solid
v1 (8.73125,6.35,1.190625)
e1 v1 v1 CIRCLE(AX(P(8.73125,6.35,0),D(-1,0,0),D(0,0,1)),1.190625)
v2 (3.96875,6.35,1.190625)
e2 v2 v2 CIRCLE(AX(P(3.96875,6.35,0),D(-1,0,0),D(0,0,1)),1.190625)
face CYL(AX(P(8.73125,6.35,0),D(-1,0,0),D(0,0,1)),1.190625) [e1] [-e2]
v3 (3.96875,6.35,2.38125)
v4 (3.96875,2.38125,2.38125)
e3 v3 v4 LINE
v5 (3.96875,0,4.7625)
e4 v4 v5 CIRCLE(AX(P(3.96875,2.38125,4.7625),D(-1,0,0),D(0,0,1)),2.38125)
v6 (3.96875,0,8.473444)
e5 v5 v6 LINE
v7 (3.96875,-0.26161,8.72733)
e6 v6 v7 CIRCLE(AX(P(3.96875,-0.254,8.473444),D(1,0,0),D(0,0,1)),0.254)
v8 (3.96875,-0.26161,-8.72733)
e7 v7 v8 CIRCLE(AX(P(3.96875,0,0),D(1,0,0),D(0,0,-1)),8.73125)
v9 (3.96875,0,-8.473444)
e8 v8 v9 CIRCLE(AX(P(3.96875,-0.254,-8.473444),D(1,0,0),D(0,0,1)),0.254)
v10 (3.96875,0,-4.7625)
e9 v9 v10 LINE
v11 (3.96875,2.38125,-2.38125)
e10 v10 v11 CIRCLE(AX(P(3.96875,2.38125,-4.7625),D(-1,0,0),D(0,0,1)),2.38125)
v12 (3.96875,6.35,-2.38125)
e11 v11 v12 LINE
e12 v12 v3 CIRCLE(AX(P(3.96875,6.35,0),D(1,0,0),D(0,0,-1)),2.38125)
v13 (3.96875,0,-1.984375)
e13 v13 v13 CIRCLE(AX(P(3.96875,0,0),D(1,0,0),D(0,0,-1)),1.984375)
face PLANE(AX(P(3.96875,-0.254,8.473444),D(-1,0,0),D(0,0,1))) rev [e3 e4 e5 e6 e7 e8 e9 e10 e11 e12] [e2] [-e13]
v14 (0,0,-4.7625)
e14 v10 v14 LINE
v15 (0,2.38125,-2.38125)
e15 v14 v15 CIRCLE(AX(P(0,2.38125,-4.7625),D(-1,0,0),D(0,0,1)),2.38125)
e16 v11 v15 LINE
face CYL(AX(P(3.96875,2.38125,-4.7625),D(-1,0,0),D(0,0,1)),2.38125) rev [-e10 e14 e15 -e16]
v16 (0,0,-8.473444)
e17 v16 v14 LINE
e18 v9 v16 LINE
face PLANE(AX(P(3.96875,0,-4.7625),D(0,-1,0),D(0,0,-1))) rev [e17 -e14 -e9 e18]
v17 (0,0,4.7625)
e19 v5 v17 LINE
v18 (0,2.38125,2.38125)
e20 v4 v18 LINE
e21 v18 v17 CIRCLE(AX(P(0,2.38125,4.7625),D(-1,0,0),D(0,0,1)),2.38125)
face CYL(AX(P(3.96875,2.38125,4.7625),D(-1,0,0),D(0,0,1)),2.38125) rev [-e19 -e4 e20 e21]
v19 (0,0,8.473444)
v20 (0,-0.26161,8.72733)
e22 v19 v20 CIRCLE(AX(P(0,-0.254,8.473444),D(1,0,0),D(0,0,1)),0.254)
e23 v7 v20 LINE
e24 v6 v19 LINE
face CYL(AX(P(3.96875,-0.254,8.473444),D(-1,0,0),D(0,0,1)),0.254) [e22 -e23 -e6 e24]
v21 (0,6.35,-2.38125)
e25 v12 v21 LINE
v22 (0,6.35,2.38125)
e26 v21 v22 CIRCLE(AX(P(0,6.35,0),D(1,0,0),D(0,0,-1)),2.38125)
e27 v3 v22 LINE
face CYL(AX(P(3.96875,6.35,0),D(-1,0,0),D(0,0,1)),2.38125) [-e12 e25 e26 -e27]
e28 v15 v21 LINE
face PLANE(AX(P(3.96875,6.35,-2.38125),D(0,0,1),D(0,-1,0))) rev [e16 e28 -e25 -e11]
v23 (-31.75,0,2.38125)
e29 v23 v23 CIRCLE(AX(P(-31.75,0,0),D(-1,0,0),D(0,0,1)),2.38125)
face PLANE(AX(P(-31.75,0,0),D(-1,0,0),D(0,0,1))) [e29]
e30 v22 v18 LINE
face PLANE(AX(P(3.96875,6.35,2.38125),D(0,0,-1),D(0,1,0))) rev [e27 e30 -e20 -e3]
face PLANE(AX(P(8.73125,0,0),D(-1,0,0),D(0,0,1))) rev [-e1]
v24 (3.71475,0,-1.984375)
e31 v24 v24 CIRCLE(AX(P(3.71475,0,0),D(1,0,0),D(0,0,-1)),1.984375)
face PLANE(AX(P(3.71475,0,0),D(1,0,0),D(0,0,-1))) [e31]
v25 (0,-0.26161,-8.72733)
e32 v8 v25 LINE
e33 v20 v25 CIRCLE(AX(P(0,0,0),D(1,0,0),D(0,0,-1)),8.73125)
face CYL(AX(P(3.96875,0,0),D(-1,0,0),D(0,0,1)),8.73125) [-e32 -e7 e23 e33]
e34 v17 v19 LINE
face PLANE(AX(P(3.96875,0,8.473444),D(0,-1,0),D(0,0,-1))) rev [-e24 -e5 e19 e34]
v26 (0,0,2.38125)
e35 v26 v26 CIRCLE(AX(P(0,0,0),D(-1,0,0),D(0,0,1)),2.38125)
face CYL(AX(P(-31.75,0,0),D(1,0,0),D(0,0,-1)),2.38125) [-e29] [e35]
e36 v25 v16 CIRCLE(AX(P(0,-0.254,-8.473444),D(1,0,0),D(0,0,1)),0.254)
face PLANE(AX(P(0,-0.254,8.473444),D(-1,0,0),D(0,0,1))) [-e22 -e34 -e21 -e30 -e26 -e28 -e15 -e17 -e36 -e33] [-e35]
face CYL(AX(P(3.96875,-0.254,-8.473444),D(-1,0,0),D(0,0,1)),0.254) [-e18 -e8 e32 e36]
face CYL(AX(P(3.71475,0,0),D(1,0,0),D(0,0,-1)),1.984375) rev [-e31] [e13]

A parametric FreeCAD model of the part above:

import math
import FreeCAD as App
import Part
import Sketcher
from FreeCAD import Vector
Q = App.Units.Quantity

doc = App.newDocument("Part")
params = doc.addObject("Spreadsheet::Sheet", "Params")
for row, (alias, value) in enumerate([
    ("sketch1_radius", "0.01 in"),
    ("sketch1_radius2", "0.09375 in"),
    ("sketch1_radius3", "0.34375 in"),
    ("sketch1_width", "0.15625 in"),
    ("pad1_length", "0.15625 in"),
    ("sketch2_diameter", "0.1875 in"),
    ("pad2_length", "1.25 in"),
    ("sketch3_diameter", "0.09375 in"),
    ("pad3_length", "0.34375 in"),
    ("sketch4_diameter", "0.15625 in"),
    ("pocket1_length", "0.01 in"),
], start=1):
    params.set(f"A{row}", alias)
    params.set(f"B{row}", "=" + value)
    params.setAlias(f"B{row}", alias)

body = doc.addObject("PartDesign::Body", "Body")

# Sketch on YZ plane
sketch1 = doc.addObject("Sketcher::SketchObject", "Sketch")
body.addObject(sketch1)
sketch1.AttachmentSupport = (doc.YZ_Plane, [""])
sketch1.MapMode = "FlatFace"
sketch1.addGeometry([
    Part.LineSegment(Vector(6.35, 2.38, 0), Vector(2.38, 2.38, 0)),  # 0
    Part.ArcOfCircle(Part.Circle(Vector(2.38, 4.76, 0), Vector(0, 0, 1), 2.38), math.radians(180), math.radians(270)),  # 1
    Part.LineSegment(Vector(0, 4.76, 0), Vector(0, 8.47, 0)),  # 2
    Part.ArcOfCircle(Part.Circle(Vector(-0.25, 8.47, 0), Vector(0, 0, 1), 0.25), math.radians(0), math.radians(92)),  # 3
    Part.ArcOfCircle(Part.Circle(Vector(0, 0, 0), Vector(0, 0, 1), 8.73), math.radians(92), math.radians(268)),  # 4
    Part.ArcOfCircle(Part.Circle(Vector(-0.25, -8.47, 0), Vector(0, 0, 1), 0.25), math.radians(-92), math.radians(0)),  # 5
    Part.LineSegment(Vector(0, -8.47, 0), Vector(0, -4.76, 0)),  # 6
    Part.ArcOfCircle(Part.Circle(Vector(2.38, -4.76, 0), Vector(0, 0, 1), 2.38), math.radians(90), math.radians(180)),  # 7
    Part.LineSegment(Vector(2.38, -2.38, 0), Vector(6.35, -2.38, 0)),  # 8
    Part.ArcOfCircle(Part.Circle(Vector(6.35, 0, 0), Vector(0, 0, 1), 2.38), math.radians(-90), math.radians(90)),  # 9
], False)
sketch1.addConstraint([
    Sketcher.Constraint("Tangent", 0, 2, 1, 2),
    Sketcher.Constraint("Tangent", 1, 1, 2, 1),
    Sketcher.Constraint("Tangent", 2, 2, 3, 1),
    Sketcher.Constraint("Tangent", 3, 2, 4, 1),
    Sketcher.Constraint("Tangent", 4, 2, 5, 1),
    Sketcher.Constraint("Tangent", 5, 2, 6, 1),
    Sketcher.Constraint("Tangent", 6, 2, 7, 2),
    Sketcher.Constraint("Tangent", 7, 1, 8, 1),
    Sketcher.Constraint("Tangent", 8, 2, 9, 1),
    Sketcher.Constraint("Tangent", 9, 2, 0, 1),
    Sketcher.Constraint("Horizontal", 0),
    Sketcher.Constraint("Vertical", 2),
    Sketcher.Constraint("Vertical", 6),
    Sketcher.Constraint("Horizontal", 8),
    Sketcher.Constraint("Coincident", 4, 3, -1, 1),
    Sketcher.Constraint("Equal", 3, 5),
    Sketcher.Constraint("Equal", 1, 7),
    Sketcher.Constraint("Equal", 7, 9),
    Sketcher.Constraint("Symmetric", 2, 2, 5, 2, -1, 1),
    Sketcher.Constraint("PointOnObject", 9, 3, -1),
    Sketcher.Constraint("Radius", 3, Q("0.01 in")),
    Sketcher.Constraint("Radius", 1, Q("0.09375 in")),
    Sketcher.Constraint("Radius", 4, Q("0.34375 in")),
    Sketcher.Constraint("DistanceX", 0, 2, 0, 1, Q("0.15625 in")),
])
sketch1.setExpression("Constraints[20]", "Params.sketch1_radius")
sketch1.setExpression("Constraints[21]", "Params.sketch1_radius2")
sketch1.setExpression("Constraints[22]", "Params.sketch1_radius3")
sketch1.setExpression("Constraints[23]", "Params.sketch1_width")
pad1 = doc.addObject("PartDesign::Pad", "Pad")
body.addObject(pad1)
pad1.Profile = sketch1
pad1.setExpression("Length", "Params.pad1_length")

# Sketch on YZ plane
sketch2 = doc.addObject("Sketcher::SketchObject", "Sketch001")
body.addObject(sketch2)
sketch2.AttachmentSupport = (doc.YZ_Plane, [""])
sketch2.MapMode = "FlatFace"
sketch2.addGeometry(Part.Circle(Vector(0, 0, 0), Vector(0, 0, 1), 2.4), False)
sketch2.addConstraint([
    Sketcher.Constraint("Coincident", 0, 3, -1, 1),
    Sketcher.Constraint("Diameter", 0, Q("0.1875 in")),
])
sketch2.setExpression("Constraints[1]", "Params.sketch2_diameter")
pad2 = doc.addObject("PartDesign::Pad", "Pad001")
body.addObject(pad2)
pad2.Profile = sketch2
pad2.setExpression("Length", "Params.pad2_length")
pad2.Reversed = True

# Sketch on YZ plane
sketch3 = doc.addObject("Sketcher::SketchObject", "Sketch002")
body.addObject(sketch3)
sketch3.AttachmentSupport = (doc.YZ_Plane, [""])
sketch3.MapMode = "FlatFace"
sketch3.addGeometry(Part.Circle(Vector(6.3, 0, 0), Vector(0, 0, 1), 1.2), False)
sketch3.addConstraint([
    Sketcher.Constraint("PointOnObject", 0, 3, -1),
    Sketcher.Constraint("Diameter", 0, Q("0.09375 in")),
    Sketcher.Constraint("DistanceX", -1, 1, 0, 3, Q("0.25 in")),
])
sketch3.setExpression("Constraints[1]", "Params.sketch3_diameter")
pad3 = doc.addObject("PartDesign::Pad", "Pad002")
body.addObject(pad3)
pad3.Profile = sketch3
pad3.setExpression("Length", "Params.pad3_length")

# Sketch on YZ plane
sketch4 = doc.addObject("Sketcher::SketchObject", "Sketch003")
body.addObject(sketch4)
sketch4.AttachmentSupport = (doc.YZ_Plane, [""])
sketch4.MapMode = "FlatFace"
sketch4.AttachmentOffset = App.Placement(Vector(0, 0, 0.15625 * 25.4), App.Rotation())
sketch4.addGeometry(Part.Circle(Vector(0, 0, 0), Vector(0, 0, 1), 2), False)
sketch4.addConstraint([
    Sketcher.Constraint("Coincident", 0, 3, -1, 1),
    Sketcher.Constraint("Diameter", 0, Q("0.15625 in")),
])
sketch4.setExpression("Constraints[1]", "Params.sketch4_diameter")
pocket1 = doc.addObject("PartDesign::Pocket", "Pocket")
body.addObject(pocket1)
pocket1.Profile = sketch4
pocket1.setExpression("Length", "Params.pocket1_length")

doc.recompute()
